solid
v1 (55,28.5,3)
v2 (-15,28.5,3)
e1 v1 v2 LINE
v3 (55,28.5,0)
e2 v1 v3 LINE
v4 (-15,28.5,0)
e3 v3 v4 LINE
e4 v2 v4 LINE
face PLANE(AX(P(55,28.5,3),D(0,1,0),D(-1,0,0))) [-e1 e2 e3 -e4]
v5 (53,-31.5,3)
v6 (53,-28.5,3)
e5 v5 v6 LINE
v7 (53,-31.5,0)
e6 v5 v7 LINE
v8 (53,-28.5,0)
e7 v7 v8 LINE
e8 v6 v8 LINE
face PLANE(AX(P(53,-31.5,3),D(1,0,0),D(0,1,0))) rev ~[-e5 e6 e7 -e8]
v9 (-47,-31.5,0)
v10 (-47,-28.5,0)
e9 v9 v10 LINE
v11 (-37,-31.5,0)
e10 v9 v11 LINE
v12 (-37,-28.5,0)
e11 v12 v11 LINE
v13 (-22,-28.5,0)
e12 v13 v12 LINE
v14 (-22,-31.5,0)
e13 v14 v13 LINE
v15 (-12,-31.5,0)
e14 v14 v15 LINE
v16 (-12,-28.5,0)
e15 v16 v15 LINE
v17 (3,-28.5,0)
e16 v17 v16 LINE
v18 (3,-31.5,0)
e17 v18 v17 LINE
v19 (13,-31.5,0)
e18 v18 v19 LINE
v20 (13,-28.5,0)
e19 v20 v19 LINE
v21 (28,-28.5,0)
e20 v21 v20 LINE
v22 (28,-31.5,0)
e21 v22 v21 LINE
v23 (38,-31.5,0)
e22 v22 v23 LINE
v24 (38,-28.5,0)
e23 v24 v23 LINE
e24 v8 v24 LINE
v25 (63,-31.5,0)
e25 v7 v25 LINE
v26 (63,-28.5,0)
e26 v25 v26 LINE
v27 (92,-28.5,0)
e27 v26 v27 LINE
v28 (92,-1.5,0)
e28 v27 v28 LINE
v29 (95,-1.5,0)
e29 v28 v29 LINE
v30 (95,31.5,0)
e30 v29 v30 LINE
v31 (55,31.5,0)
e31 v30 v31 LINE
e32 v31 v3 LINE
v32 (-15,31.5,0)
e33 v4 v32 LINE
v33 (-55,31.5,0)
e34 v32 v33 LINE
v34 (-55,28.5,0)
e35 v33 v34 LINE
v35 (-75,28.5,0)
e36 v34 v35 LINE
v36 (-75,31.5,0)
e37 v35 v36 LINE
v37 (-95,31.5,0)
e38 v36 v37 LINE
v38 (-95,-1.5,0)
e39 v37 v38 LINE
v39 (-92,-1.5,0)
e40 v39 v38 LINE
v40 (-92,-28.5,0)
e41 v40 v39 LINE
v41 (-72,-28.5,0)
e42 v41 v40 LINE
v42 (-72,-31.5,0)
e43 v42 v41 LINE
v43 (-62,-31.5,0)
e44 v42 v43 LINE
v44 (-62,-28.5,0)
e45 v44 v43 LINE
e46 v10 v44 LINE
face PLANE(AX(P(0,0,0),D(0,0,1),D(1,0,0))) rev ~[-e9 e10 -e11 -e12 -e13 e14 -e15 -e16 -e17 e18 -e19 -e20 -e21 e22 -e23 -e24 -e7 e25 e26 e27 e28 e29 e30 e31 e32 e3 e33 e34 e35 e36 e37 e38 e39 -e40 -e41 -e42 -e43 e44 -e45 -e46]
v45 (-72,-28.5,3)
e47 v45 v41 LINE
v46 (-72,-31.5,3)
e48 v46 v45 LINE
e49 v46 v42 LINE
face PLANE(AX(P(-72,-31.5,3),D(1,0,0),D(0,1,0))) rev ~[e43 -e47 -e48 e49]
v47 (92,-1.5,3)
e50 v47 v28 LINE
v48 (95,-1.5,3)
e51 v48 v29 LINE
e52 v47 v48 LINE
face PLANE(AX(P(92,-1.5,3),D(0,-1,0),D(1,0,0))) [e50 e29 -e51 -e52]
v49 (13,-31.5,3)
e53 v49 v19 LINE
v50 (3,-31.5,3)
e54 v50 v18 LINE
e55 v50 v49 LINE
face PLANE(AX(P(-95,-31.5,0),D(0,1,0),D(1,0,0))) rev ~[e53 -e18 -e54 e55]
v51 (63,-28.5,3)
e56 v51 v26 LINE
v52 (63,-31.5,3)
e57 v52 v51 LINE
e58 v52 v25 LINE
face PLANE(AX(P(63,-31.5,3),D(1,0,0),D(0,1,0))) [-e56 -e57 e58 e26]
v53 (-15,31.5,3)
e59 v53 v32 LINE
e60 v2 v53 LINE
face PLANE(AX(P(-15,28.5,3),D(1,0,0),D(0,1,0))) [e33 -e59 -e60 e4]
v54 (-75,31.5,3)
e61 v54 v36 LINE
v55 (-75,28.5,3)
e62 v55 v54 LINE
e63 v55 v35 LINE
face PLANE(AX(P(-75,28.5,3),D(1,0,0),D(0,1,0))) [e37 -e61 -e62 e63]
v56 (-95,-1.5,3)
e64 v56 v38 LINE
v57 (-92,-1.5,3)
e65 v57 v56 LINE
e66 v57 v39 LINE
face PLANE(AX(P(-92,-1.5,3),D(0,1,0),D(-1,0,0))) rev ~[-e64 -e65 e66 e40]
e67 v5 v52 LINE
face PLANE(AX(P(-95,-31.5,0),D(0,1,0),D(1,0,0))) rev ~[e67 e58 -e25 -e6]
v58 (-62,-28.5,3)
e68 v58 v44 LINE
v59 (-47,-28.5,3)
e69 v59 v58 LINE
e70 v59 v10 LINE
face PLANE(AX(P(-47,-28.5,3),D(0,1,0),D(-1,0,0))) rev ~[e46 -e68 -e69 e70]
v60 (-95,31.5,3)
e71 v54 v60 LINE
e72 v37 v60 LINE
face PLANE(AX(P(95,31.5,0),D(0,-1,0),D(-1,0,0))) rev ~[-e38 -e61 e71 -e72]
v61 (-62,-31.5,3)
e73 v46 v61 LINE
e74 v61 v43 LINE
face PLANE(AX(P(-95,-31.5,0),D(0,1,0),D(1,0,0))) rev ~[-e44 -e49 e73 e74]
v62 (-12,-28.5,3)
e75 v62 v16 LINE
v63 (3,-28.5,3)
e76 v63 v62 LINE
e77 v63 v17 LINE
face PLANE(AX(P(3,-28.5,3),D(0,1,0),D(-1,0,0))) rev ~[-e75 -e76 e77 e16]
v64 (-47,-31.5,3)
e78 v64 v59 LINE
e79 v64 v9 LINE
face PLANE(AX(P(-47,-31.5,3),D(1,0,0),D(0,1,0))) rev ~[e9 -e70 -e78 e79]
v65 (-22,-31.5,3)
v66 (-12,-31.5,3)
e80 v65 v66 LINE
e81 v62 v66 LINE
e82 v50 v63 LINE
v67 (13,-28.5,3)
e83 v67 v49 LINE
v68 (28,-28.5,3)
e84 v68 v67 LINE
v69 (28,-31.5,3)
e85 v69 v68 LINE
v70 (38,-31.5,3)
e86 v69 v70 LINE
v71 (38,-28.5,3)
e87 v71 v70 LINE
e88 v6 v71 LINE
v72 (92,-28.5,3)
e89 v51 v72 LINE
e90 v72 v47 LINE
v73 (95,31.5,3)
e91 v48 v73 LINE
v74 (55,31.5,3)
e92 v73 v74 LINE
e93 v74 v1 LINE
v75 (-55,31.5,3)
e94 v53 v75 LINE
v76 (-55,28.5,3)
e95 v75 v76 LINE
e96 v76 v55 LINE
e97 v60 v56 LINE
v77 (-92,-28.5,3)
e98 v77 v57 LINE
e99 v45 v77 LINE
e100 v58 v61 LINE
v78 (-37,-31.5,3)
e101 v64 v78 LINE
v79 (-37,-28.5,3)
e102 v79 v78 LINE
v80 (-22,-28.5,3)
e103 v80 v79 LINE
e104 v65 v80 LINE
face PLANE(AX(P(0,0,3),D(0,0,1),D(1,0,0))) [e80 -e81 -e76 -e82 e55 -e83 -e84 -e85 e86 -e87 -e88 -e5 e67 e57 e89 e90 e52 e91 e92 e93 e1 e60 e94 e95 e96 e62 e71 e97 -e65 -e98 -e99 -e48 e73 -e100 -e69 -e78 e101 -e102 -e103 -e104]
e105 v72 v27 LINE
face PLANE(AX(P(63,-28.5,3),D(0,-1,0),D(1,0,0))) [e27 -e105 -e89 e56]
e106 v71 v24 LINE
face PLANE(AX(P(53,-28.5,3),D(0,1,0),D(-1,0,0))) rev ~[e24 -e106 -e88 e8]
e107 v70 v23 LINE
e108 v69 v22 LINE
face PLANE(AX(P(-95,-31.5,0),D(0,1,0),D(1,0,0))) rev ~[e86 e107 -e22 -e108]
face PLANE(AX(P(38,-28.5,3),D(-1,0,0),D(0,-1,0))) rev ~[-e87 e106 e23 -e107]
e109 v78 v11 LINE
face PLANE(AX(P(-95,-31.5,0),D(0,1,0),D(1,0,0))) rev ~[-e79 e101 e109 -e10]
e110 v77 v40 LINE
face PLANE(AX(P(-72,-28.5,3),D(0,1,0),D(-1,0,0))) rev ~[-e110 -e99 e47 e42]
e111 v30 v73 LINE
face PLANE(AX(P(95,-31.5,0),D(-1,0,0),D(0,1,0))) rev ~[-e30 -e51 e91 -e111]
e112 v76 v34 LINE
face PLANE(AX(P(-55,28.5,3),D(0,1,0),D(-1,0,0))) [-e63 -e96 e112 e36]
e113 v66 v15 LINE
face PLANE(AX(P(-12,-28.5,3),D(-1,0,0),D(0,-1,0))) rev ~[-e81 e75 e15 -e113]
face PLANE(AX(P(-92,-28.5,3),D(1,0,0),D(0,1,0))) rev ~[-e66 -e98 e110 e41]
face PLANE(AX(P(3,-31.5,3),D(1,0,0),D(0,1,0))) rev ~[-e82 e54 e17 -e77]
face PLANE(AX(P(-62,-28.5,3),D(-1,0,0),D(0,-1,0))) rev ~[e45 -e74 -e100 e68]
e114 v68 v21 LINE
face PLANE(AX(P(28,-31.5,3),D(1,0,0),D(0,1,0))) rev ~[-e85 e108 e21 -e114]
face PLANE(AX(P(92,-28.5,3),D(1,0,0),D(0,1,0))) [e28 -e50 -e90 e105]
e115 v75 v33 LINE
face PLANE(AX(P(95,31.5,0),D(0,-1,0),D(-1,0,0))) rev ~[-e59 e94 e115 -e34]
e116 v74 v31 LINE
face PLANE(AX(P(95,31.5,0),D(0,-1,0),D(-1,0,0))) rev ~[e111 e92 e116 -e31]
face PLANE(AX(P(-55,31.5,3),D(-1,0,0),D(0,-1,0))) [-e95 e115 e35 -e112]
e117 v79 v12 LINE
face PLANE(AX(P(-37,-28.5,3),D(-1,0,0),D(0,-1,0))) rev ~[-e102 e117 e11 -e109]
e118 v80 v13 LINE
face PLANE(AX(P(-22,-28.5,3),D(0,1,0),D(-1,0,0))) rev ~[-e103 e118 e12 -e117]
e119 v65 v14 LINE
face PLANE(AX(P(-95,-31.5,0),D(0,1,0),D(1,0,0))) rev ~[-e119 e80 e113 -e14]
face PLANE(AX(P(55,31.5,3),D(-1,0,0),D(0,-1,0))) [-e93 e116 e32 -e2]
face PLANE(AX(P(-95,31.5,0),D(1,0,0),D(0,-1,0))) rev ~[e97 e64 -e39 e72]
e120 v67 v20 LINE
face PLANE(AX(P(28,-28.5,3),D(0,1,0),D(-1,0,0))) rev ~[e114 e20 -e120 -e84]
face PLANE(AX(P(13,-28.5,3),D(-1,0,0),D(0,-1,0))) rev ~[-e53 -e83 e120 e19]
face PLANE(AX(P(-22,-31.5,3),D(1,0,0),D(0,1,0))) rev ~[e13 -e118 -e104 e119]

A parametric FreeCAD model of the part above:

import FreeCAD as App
import Part
import Sketcher

V = App.Vector
Q = App.Units.Quantity

doc = App.newDocument("Part")
body = doc.addObject("PartDesign::Body", "Body")

# Sketch on XY plane
sketch1 = body.newObject("Sketcher::SketchObject", "Sketch")
sketch1.AttachmentSupport = (doc.getObject("XY_Plane"), [""])
sketch1.MapMode = "FlatFace"
sketch1.addGeometry(Part.LineSegment(V(-95, 32, 0), V(-95, -32, 0)), False)
sketch1.addGeometry(Part.LineSegment(V(-95, -32, 0), V(95, -32, 0)), False)
sketch1.addGeometry(Part.LineSegment(V(95, -32, 0), V(95, 32, 0)), False)
sketch1.addGeometry(Part.LineSegment(V(95, 32, 0), V(-95, 32, 0)), False)
sketch1.addConstraint(Sketcher.Constraint("Coincident", 0, 2, 1, 1))
sketch1.addConstraint(Sketcher.Constraint("Coincident", 1, 2, 2, 1))
sketch1.addConstraint(Sketcher.Constraint("Coincident", 2, 2, 3, 1))
sketch1.addConstraint(Sketcher.Constraint("Coincident", 3, 2, 0, 1))
sketch1.addConstraint(Sketcher.Constraint("Vertical", 0))
sketch1.addConstraint(Sketcher.Constraint("Horizontal", 1))
sketch1.addConstraint(Sketcher.Constraint("Vertical", 2))
sketch1.addConstraint(Sketcher.Constraint("Horizontal", 3))
sketch1.addConstraint(Sketcher.Constraint("Symmetric", 0, 2, 2, 2, -1, 1))
sketch1.addConstraint(Sketcher.Constraint("DistanceX", 1, 1, 1, 2, Q("190 mm")))
sketch1.addConstraint(Sketcher.Constraint("DistanceY", 0, 2, 0, 1, Q("63 mm")))
pad1 = body.newObject("PartDesign::Pad", "Pad")
pad1.Profile = sketch1
pad1.Length = 3

# Sketch on XY plane
sketch2 = body.newObject("Sketcher::SketchObject", "Sketch001")
sketch2.AttachmentSupport = (doc.getObject("XY_Plane"), [""])
sketch2.MapMode = "FlatFace"
sketch2.AttachmentOffset = App.Placement(V(0, 0, 3), App.Rotation())
sketch2.addGeometry(Part.LineSegment(V(-92, -1.5, 0), V(-95, -1.5, 0)), False)
sketch2.addGeometry(Part.LineSegment(V(-95, -1.5, 0), V(-95, -31.5, 0)), False)
sketch2.addGeometry(Part.LineSegment(V(-95, -31.5, 0), V(-72, -31.5, 0)), False)
sketch2.addGeometry(Part.LineSegment(V(-72, -31.5, 0), V(-72, -28.5, 0)), False)
sketch2.addGeometry(Part.LineSegment(V(-72, -28.5, 0), V(-92, -28.5, 0)), False)
sketch2.addGeometry(Part.LineSegment(V(-92, -28.5, 0), V(-92, -1.5, 0)), False)
sketch2.addGeometry(Part.LineSegment(V(63, -28.5, 0), V(63, -31.5, 0)), False)
sketch2.addGeometry(Part.LineSegment(V(63, -31.5, 0), V(95, -31.5, 0)), False)
sketch2.addGeometry(Part.LineSegment(V(95, -31.5, 0), V(95, -1.5, 0)), False)
sketch2.addGeometry(Part.LineSegment(V(95, -1.5, 0), V(92, -1.5, 0)), False)
sketch2.addGeometry(Part.LineSegment(V(92, -1.5, 0), V(92, -28.5, 0)), False)
sketch2.addGeometry(Part.LineSegment(V(92, -28.5, 0), V(63, -28.5, 0)), False)
sketch2.addGeometry(Part.LineSegment(V(38, -28.5, 0), V(38, -31.5, 0)), False)
sketch2.addGeometry(Part.LineSegment(V(38, -31.5, 0), V(53, -31.5, 0)), False)
sketch2.addGeometry(Part.LineSegment(V(53, -31.5, 0), V(53, -28.5, 0)), False)
sketch2.addGeometry(Part.LineSegment(V(53, -28.5, 0), V(38, -28.5, 0)), False)
sketch2.addGeometry(Part.LineSegment(V(13, -28.5, 0), V(13, -31.5, 0)), False)
sketch2.addGeometry(Part.LineSegment(V(13, -31.5, 0), V(28, -31.5, 0)), False)
sketch2.addGeometry(Part.LineSegment(V(28, -31.5, 0), V(28, -28.5, 0)), False)
sketch2.addGeometry(Part.LineSegment(V(28, -28.5, 0), V(13, -28.5, 0)), False)
sketch2.addGeometry(Part.LineSegment(V(-12, -28.5, 0), V(-12, -31.5, 0)), False)
sketch2.addGeometry(Part.LineSegment(V(-12, -31.5, 0), V(3, -31.5, 0)), False)
sketch2.addGeometry(Part.LineSegment(V(3, -31.5, 0), V(3, -28.5, 0)), False)
sketch2.addGeometry(Part.LineSegment(V(3, -28.5, 0), V(-12, -28.5, 0)), False)
sketch2.addGeometry(Part.LineSegment(V(-37, -28.5, 0), V(-37, -31.5, 0)), False)
sketch2.addGeometry(Part.LineSegment(V(-37, -31.5, 0), V(-22, -31.5, 0)), False)
sketch2.addGeometry(Part.LineSegment(V(-22, -31.5, 0), V(-22, -28.5, 0)), False)
sketch2.addGeometry(Part.LineSegment(V(-22, -28.5, 0), V(-37, -28.5, 0)), False)
sketch2.addGeometry(Part.LineSegment(V(-62, -28.5, 0), V(-62, -31.5, 0)), False)
sketch2.addGeometry(Part.LineSegment(V(-62, -31.5, 0), V(-47, -31.5, 0)), False)
sketch2.addGeometry(Part.LineSegment(V(-47, -31.5, 0), V(-47, -28.5, 0)), False)
sketch2.addGeometry(Part.LineSegment(V(-47, -28.5, 0), V(-62, -28.5, 0)), False)
sketch2.addConstraint(Sketcher.Constraint("Coincident", 0, 2, 1, 1))
sketch2.addConstraint(Sketcher.Constraint("Coincident", 1, 2, 2, 1))
sketch2.addConstraint(Sketcher.Constraint("Coincident", 2, 2, 3, 1))
sketch2.addConstraint(Sketcher.Constraint("Coincident", 3, 2, 4, 1))
sketch2.addConstraint(Sketcher.Constraint("Coincident", 4, 2, 5, 1))
sketch2.addConstraint(Sketcher.Constraint("Coincident", 5, 2, 0, 1))
sketch2.addConstraint(Sketcher.Constraint("Coincident", 6, 2, 7, 1))
sketch2.addConstraint(Sketcher.Constraint("Coincident", 7, 2, 8, 1))
sketch2.addConstraint(Sketcher.Constraint("Coincident", 8, 2, 9, 1))
sketch2.addConstraint(Sketcher.Constraint("Coincident", 9, 2, 10, 1))
sketch2.addConstraint(Sketcher.Constraint("Coincident", 10, 2, 11, 1))
sketch2.addConstraint(Sketcher.Constraint("Coincident", 11, 2, 6, 1))
sketch2.addConstraint(Sketcher.Constraint("Coincident", 12, 2, 13, 1))
sketch2.addConstraint(Sketcher.Constraint("Coincident", 13, 2, 14, 1))
sketch2.addConstraint(Sketcher.Constraint("Coincident", 14, 2, 15, 1))
sketch2.addConstraint(Sketcher.Constraint("Coincident", 15, 2, 12, 1))
sketch2.addConstraint(Sketcher.Constraint("Coincident", 16, 2, 17, 1))
sketch2.addConstraint(Sketcher.Constraint("Coincident", 17, 2, 18, 1))
sketch2.addConstraint(Sketcher.Constraint("Coincident", 18, 2, 19, 1))
sketch2.addConstraint(Sketcher.Constraint("Coincident", 19, 2, 16, 1))
sketch2.addConstraint(Sketcher.Constraint("Coincident", 20, 2, 21, 1))
sketch2.addConstraint(Sketcher.Constraint("Coincident", 21, 2, 22, 1))
sketch2.addConstraint(Sketcher.Constraint("Coincident", 22, 2, 23, 1))
sketch2.addConstraint(Sketcher.Constraint("Coincident", 23, 2, 20, 1))
sketch2.addConstraint(Sketcher.Constraint("Coincident", 24, 2, 25, 1))
sketch2.addConstraint(Sketcher.Constraint("Coincident", 25, 2, 26, 1))
sketch2.addConstraint(Sketcher.Constraint("Coincident", 26, 2, 27, 1))
sketch2.addConstraint(Sketcher.Constraint("Coincident", 27, 2, 24, 1))
sketch2.addConstraint(Sketcher.Constraint("Coincident", 28, 2, 29, 1))
sketch2.addConstraint(Sketcher.Constraint("Coincident", 29, 2, 30, 1))
sketch2.addConstraint(Sketcher.Constraint("Coincident", 30, 2, 31, 1))
sketch2.addConstraint(Sketcher.Constraint("Coincident", 31, 2, 28, 1))
sketch2.addConstraint(Sketcher.Constraint("Horizontal", 0))
sketch2.addConstraint(Sketcher.Constraint("Vertical", 1))
sketch2.addConstraint(Sketcher.Constraint("Horizontal", 2))
sketch2.addConstraint(Sketcher.Constraint("Vertical", 3))
sketch2.addConstraint(Sketcher.Constraint("Horizontal", 4))
sketch2.addConstraint(Sketcher.Constraint("Vertical", 5))
sketch2.addConstraint(Sketcher.Constraint("Vertical", 6))
sketch2.addConstraint(Sketcher.Constraint("Horizontal", 7))
sketch2.addConstraint(Sketcher.Constraint("Vertical", 8))
sketch2.addConstraint(Sketcher.Constraint("Horizontal", 9))
sketch2.addConstraint(Sketcher.Constraint("Vertical", 10))
sketch2.addConstraint(Sketcher.Constraint("Horizontal", 11))
sketch2.addConstraint(Sketcher.Constraint("Vertical", 12))
sketch2.addConstraint(Sketcher.Constraint("Horizontal", 13))
sketch2.addConstraint(Sketcher.Constraint("Vertical", 14))
sketch2.addConstraint(Sketcher.Constraint("Horizontal", 15))
sketch2.addConstraint(Sketcher.Constraint("Vertical", 16))
sketch2.addConstraint(Sketcher.Constraint("Horizontal", 17))
sketch2.addConstraint(Sketcher.Constraint("Vertical", 18))
sketch2.addConstraint(Sketcher.Constraint("Horizontal", 19))
sketch2.addConstraint(Sketcher.Constraint("Vertical", 20))
sketch2.addConstraint(Sketcher.Constraint("Horizontal", 21))
sketch2.addConstraint(Sketcher.Constraint("Vertical", 22))
sketch2.addConstraint(Sketcher.Constraint("Horizontal", 23))
sketch2.addConstraint(Sketcher.Constraint("Vertical", 24))
sketch2.addConstraint(Sketcher.Constraint("Horizontal", 25))
sketch2.addConstraint(Sketcher.Constraint("Vertical", 26))
sketch2.addConstraint(Sketcher.Constraint("Horizontal", 27))
sketch2.addConstraint(Sketcher.Constraint("Vertical", 28))
sketch2.addConstraint(Sketcher.Constraint("Horizontal", 29))
sketch2.addConstraint(Sketcher.Constraint("Vertical", 30))
sketch2.addConstraint(Sketcher.Constraint("Horizontal", 31))
sketch2.addConstraint(Sketcher.Constraint("Symmetric", 1, 2, 7, 2, -2))
sketch2.addConstraint(Sketcher.Constraint("Symmetric", 5, 2, 9, 2, -2))
sketch2.addConstraint(Sketcher.Constraint("Horizontal", 4, 2, 10, 2))
sketch2.addConstraint(Sketcher.Constraint("Horizontal", 7, 2, 12, 2))
sketch2.addConstraint(Sketcher.Constraint("Horizontal", 11, 2, 14, 2))
sketch2.addConstraint(Sketcher.Constraint("Horizontal", 13, 2, 16, 2))
sketch2.addConstraint(Sketcher.Constraint("Horizontal", 15, 2, 18, 2))
sketch2.addConstraint(Sketcher.Constraint("Horizontal", 17, 2, 20, 2))
sketch2.addConstraint(Sketcher.Constraint("Horizontal", 19, 2, 22, 2))
sketch2.addConstraint(Sketcher.Constraint("Horizontal", 21, 2, 24, 2))
sketch2.addConstraint(Sketcher.Constraint("Horizontal", 23, 2, 26, 2))
sketch2.addConstraint(Sketcher.Constraint("Horizontal", 25, 2, 28, 2))
sketch2.addConstraint(Sketcher.Constraint("Horizontal", 27, 2, 30, 2))
sketch2.addConstraint(Sketcher.Constraint("Equal", 15, 17))
sketch2.addConstraint(Sketcher.Constraint("Equal", 19, 21))
sketch2.addConstraint(Sketcher.Constraint("Equal", 23, 25))
sketch2.addConstraint(Sketcher.Constraint("Equal", 27, 29))
sketch2.addConstraint(Sketcher.Constraint("Equal", 9, 3))
sketch2.addConstraint(Sketcher.Constraint("DistanceX", 0, 2, 0, 1, Q("3 mm")))
sketch2.addConstraint(Sketcher.Constraint("DistanceX", 4, 2, 4, 1, Q("20 mm")))
sketch2.addConstraint(Sketcher.Constraint("DistanceX", 13, 1, 13, 2, Q("15 mm")))
sketch2.addConstraint(Sketcher.Constraint("DistanceY", 1, 2, 1, 1, Q("30 mm")))
sketch2.addConstraint(Sketcher.Constraint("DistanceX", -1, 1, 21, 2, Q("3 mm")))
sketch2.addConstraint(Sketcher.Constraint("DistanceX", 13, 2, 6, 2, Q("10 mm")))
sketch2.addConstraint(Sketcher.Constraint("DistanceX", 17, 2, 12, 2, Q("10 mm")))
sketch2.addConstraint(Sketcher.Constraint("DistanceX", 21, 2, 16, 2, Q("10 mm")))
sketch2.addConstraint(Sketcher.Constraint("DistanceX", 25, 2, 20, 2, Q("10 mm")))
sketch2.addConstraint(Sketcher.Constraint("DistanceX", 2, 2, 28, 2, Q("10 mm")))
sketch2.addConstraint(Sketcher.Constraint("DistanceX", 29, 2, 24, 2, Q("10 mm")))
sketch2.addConstraint(Sketcher.Constraint("DistanceY", 0, 2, -1, 1, Q("1.5 mm")))
pocket1 = body.newObject("PartDesign::Pocket", "Pocket")
pocket1.Profile = sketch2
pocket1.Type = "ThroughAll"

# Sketch on XY plane
sketch3 = body.newObject("Sketcher::SketchObject", "Sketch002")
sketch3.AttachmentSupport = (doc.getObject("XY_Plane"), [""])
sketch3.MapMode = "FlatFace"
sketch3.AttachmentOffset = App.Placement(V(0, 0, 3), App.Rotation())
sketch3.addGeometry(Part.LineSegment(V(55, 28.5, 0), V(55, 31.5, 0)), False)
sketch3.addGeometry(Part.LineSegment(V(55, 31.5, 0), V(-15, 31.5, 0)), False)
sketch3.addGeometry(Part.LineSegment(V(-15, 31.5, 0), V(-15, 28.5, 0)), False)
sketch3.addGeometry(Part.LineSegment(V(-15, 28.5, 0), V(55, 28.5, 0)), False)
sketch3.addGeometry(Part.LineSegment(V(-55, 28.5, 0), V(-55, 31.5, 0)), False)
sketch3.addGeometry(Part.LineSegment(V(-55, 31.5, 0), V(-75, 31.5, 0)), False)
sketch3.addGeometry(Part.LineSegment(V(-75, 31.5, 0), V(-75, 28.5, 0)), False)
sketch3.addGeometry(Part.LineSegment(V(-75, 28.5, 0), V(-55, 28.5, 0)), False)
sketch3.addConstraint(Sketcher.Constraint("Coincident", 0, 2, 1, 1))
sketch3.addConstraint(Sketcher.Constraint("Coincident", 1, 2, 2, 1))
sketch3.addConstraint(Sketcher.Constraint("Coincident", 2, 2, 3, 1))
sketch3.addConstraint(Sketcher.Constraint("Coincident", 3, 2, 0, 1))
sketch3.addConstraint(Sketcher.Constraint("Coincident", 4, 2, 5, 1))
sketch3.addConstraint(Sketcher.Constraint("Coincident", 5, 2, 6, 1))
sketch3.addConstraint(Sketcher.Constraint("Coincident", 6, 2, 7, 1))
sketch3.addConstraint(Sketcher.Constraint("Coincident", 7, 2, 4, 1))
sketch3.addConstraint(Sketcher.Constraint("Vertical", 0))
sketch3.addConstraint(Sketcher.Constraint("Horizontal", 1))
sketch3.addConstraint(Sketcher.Constraint("Vertical", 2))
sketch3.addConstraint(Sketcher.Constraint("Horizontal", 3))
sketch3.addConstraint(Sketcher.Constraint("Vertical", 4))
sketch3.addConstraint(Sketcher.Constraint("Horizontal", 5))
sketch3.addConstraint(Sketcher.Constraint("Vertical", 6))
sketch3.addConstraint(Sketcher.Constraint("Horizontal", 7))
sketch3.addConstraint(Sketcher.Constraint("Symmetric", 0, 2, 4, 2, -2))
sketch3.addConstraint(Sketcher.Constraint("Horizontal", 3, 2, 6, 2))
sketch3.addConstraint(Sketcher.Constraint("DistanceX", 1, 2, 1, 1, Q("70 mm")))
sketch3.addConstraint(Sketcher.Constraint("DistanceX", 5, 2, 5, 1, Q("20 mm")))
sketch3.addConstraint(Sketcher.Constraint("DistanceY", 0, 1, 0, 2, Q("3 mm")))
sketch3.addConstraint(Sketcher.Constraint("DistanceX", 4, 2, 1, 2, Q("40 mm")))
sketch3.addConstraint(Sketcher.Constraint("DistanceY", -1, 1, 0, 2, Q("31.5 mm")))
pocket2 = body.newObject("PartDesign::Pocket", "Pocket001")
pocket2.Profile = sketch3
pocket2.Type = "ThroughAll"

doc.recompute()
